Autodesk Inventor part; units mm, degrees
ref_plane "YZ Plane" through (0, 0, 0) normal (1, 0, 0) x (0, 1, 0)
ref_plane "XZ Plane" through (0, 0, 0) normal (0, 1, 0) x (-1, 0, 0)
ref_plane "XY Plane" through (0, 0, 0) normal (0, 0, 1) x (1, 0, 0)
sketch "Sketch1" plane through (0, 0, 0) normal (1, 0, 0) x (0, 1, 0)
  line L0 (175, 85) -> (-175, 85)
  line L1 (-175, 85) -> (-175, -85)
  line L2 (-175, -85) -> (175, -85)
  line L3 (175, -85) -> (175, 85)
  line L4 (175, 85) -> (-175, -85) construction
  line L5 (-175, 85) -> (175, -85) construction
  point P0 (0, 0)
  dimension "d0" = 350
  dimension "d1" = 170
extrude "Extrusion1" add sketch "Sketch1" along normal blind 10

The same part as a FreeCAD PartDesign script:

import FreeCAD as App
import Part
import Sketcher
Q = App.Units.Quantity


def add_polygon(sketch, points):
    """Adds a closed chain of lines whose ends are joined by coincident constraints."""
    first, n = sketch.GeometryCount, len(points)
    for a, b in zip(points, points[1:] + points[:1]):
        sketch.addGeometry(Part.LineSegment(App.Vector(*a, 0), App.Vector(*b, 0)), False)
    for i in range(n):
        sketch.addConstraint(Sketcher.Constraint("Coincident", first + i, 2, first + (i + 1) % n, 1))

doc = App.newDocument("Part")
body = doc.addObject("PartDesign::Body", "Body")

sketch1 = body.newObject("Sketcher::SketchObject", "Sketch")
sketch1.AttachmentSupport = (doc.getObject("YZ_Plane"), [""])
sketch1.MapMode = "FlatFace"
add_polygon(sketch1, [(175, -85), (175, 85), (-175, 85), (-175, -85)])
sketch1.addConstraint([
    Sketcher.Constraint("Vertical", 0),
    Sketcher.Constraint("Horizontal", 1),
    Sketcher.Constraint("Vertical", 2),
    Sketcher.Constraint("Horizontal", 3),
    Sketcher.Constraint("Symmetric", 0, 2, 2, 2, -1, 1),
    Sketcher.Constraint("DistanceX", 1, 2, 1, 1, Q("350 mm")),
    Sketcher.Constraint("DistanceY", 0, 1, 0, 2, Q("170 mm")),
])
pad1 = body.newObject("PartDesign::Pad", "Pad")
pad1.Profile = sketch1
pad1.Length = 10

doc.recompute()
